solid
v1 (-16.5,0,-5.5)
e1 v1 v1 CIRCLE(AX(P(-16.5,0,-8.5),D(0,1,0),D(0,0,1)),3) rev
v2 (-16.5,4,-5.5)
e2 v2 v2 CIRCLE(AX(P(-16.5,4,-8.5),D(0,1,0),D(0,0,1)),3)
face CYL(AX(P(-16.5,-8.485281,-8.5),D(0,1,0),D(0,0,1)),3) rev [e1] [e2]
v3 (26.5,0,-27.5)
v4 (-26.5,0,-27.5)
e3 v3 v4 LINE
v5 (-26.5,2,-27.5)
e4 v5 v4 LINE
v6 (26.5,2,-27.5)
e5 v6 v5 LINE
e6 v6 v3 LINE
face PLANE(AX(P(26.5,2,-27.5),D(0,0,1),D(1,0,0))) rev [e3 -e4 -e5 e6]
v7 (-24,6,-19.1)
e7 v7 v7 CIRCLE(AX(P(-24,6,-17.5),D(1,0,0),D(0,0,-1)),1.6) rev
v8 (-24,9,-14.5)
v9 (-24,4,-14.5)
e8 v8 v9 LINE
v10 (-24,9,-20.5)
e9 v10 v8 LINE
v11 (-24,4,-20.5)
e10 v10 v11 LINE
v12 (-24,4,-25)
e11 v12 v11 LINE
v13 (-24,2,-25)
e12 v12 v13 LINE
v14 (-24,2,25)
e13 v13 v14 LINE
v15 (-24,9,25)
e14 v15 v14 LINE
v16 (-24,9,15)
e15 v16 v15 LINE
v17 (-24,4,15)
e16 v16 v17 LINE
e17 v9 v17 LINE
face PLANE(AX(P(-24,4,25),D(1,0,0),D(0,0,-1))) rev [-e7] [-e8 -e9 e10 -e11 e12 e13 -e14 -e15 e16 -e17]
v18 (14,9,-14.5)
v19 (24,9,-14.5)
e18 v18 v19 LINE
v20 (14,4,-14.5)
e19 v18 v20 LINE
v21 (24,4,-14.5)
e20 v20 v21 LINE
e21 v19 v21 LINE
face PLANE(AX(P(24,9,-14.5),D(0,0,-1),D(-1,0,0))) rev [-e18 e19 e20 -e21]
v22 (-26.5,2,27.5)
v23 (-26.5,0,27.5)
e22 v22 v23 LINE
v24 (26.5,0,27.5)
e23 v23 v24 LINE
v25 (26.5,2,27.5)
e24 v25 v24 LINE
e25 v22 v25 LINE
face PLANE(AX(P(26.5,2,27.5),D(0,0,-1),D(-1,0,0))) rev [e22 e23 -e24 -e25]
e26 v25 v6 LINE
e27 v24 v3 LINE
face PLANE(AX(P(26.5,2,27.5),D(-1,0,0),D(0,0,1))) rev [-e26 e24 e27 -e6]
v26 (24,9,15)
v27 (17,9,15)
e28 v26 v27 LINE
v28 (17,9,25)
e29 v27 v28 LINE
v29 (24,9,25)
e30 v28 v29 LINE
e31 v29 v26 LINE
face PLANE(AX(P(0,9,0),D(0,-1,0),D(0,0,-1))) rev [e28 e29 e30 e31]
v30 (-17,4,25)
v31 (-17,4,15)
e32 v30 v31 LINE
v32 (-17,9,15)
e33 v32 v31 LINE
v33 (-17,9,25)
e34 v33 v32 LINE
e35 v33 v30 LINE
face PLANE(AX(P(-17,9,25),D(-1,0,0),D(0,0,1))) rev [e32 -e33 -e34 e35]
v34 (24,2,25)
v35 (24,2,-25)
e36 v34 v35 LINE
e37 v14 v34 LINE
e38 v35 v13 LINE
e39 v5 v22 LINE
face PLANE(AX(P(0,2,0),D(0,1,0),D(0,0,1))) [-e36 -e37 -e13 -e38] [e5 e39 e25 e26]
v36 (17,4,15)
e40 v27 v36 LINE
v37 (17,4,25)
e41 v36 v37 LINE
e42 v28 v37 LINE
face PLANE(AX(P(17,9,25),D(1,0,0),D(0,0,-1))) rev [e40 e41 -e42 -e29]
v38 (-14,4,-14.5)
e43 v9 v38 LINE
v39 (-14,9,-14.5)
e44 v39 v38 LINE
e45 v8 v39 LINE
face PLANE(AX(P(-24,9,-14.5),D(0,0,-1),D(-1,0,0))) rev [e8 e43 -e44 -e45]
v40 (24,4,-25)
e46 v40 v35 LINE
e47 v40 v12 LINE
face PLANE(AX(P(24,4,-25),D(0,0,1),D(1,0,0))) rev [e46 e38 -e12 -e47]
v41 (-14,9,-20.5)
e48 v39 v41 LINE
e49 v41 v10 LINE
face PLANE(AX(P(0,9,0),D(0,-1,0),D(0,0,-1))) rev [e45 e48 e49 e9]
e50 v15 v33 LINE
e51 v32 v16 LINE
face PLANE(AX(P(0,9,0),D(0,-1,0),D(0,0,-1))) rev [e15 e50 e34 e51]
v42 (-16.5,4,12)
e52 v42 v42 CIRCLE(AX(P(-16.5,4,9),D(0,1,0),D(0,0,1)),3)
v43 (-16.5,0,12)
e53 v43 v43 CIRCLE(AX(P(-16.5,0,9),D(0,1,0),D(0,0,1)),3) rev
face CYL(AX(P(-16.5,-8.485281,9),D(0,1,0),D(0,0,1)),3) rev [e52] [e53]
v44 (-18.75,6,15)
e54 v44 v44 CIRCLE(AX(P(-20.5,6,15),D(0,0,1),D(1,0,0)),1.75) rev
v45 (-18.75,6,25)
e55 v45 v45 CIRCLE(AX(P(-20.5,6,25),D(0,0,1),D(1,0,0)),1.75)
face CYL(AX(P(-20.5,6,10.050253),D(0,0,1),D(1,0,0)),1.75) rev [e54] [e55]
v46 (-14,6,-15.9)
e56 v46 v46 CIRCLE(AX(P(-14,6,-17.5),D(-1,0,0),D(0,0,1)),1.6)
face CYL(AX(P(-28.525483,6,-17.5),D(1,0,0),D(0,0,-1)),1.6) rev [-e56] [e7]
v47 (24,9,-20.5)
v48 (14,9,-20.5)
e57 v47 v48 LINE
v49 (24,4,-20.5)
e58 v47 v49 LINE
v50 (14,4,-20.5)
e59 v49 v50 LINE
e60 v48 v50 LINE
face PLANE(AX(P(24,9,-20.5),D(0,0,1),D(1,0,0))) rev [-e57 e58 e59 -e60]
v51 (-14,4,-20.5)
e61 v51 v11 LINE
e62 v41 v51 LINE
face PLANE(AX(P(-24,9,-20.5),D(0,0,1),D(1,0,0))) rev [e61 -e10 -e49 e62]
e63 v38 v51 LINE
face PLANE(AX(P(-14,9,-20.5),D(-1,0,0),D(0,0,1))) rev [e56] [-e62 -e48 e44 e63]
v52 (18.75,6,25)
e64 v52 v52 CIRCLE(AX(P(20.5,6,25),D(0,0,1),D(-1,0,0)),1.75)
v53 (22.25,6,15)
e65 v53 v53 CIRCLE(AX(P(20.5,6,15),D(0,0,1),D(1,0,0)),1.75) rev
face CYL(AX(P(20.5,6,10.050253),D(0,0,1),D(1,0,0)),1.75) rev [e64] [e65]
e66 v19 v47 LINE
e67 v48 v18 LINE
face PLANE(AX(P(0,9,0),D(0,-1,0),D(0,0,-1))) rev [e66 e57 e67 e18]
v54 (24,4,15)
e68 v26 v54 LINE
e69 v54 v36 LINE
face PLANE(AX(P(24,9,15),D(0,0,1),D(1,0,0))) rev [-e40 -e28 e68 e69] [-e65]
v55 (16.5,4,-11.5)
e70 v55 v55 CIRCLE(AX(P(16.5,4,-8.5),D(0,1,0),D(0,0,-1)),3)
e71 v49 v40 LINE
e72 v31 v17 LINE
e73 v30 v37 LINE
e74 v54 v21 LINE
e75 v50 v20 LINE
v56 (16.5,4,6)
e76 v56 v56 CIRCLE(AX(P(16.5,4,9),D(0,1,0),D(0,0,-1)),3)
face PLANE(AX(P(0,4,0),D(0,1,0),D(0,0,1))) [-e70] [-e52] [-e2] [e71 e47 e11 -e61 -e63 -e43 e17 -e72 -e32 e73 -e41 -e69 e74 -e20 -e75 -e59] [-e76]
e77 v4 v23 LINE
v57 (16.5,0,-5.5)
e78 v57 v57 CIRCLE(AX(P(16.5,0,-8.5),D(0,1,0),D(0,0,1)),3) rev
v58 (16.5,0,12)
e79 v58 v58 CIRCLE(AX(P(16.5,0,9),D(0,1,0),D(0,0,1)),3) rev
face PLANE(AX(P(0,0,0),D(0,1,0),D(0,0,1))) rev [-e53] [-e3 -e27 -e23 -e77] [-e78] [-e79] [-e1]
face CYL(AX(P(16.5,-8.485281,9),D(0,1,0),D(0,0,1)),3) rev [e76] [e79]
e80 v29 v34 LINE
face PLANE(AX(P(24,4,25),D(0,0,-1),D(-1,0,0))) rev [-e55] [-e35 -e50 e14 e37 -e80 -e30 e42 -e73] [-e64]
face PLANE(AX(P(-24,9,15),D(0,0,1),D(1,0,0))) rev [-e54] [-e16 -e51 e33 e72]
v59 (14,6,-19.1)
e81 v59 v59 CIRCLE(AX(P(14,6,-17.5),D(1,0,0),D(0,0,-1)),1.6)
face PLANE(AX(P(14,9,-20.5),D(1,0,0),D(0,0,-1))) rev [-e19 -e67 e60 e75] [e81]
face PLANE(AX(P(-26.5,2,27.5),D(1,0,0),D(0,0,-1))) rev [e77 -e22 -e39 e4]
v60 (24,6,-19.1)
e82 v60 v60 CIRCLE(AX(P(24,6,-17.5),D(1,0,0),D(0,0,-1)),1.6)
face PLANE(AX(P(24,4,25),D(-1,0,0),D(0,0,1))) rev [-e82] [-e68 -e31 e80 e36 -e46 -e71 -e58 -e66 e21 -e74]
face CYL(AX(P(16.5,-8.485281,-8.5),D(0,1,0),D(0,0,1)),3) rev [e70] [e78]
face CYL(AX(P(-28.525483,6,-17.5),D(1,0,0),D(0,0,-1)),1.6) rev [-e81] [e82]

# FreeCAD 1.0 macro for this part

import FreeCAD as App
import Part
import Sketcher
from FreeCAD import Vector
Q = App.Units.Quantity

doc = App.newDocument("Part")
body = doc.addObject("PartDesign::Body", "Body")

# Sketch on XZ plane
sketch1 = doc.addObject("Sketcher::SketchObject", "Sketch")
body.addObject(sketch1)
sketch1.AttachmentSupport = (doc.XZ_Plane, [""])
sketch1.MapMode = "FlatFace"
sketch1.addGeometry([
    Part.LineSegment(Vector(-26, -28, 0), Vector(-26, 28, 0)),
    Part.LineSegment(Vector(-26, 28, 0), Vector(26, 28, 0)),
    Part.LineSegment(Vector(26, 28, 0), Vector(26, -28, 0)),
    Part.LineSegment(Vector(26, -28, 0), Vector(-26, -28, 0)),
], False)
sketch1.addConstraint([
    Sketcher.Constraint("Coincident", 0, 2, 1, 1),
    Sketcher.Constraint("Coincident", 1, 2, 2, 1),
    Sketcher.Constraint("Coincident", 2, 2, 3, 1),
    Sketcher.Constraint("Coincident", 3, 2, 0, 1),
    Sketcher.Constraint("Vertical", 0),
    Sketcher.Constraint("Horizontal", 1),
    Sketcher.Constraint("Vertical", 2),
    Sketcher.Constraint("Horizontal", 3),
    Sketcher.Constraint("Symmetric", 0, 2, 2, 2, -1, 1),
    Sketcher.Constraint("DistanceX", 1, 1, 1, 2, Q("53 mm")),
    Sketcher.Constraint("DistanceY", 0, 1, 0, 2, Q("55 mm")),
])
pad1 = doc.addObject("PartDesign::Pad", "Pad")
body.addObject(pad1)
pad1.Profile = sketch1
pad1.Length = 2
pad1.Reversed = True

# Sketch on XZ plane
sketch2 = doc.addObject("Sketcher::SketchObject", "Sketch001")
body.addObject(sketch2)
sketch2.AttachmentSupport = (doc.XZ_Plane, [""])
sketch2.MapMode = "FlatFace"
sketch2.AttachmentOffset = App.Placement(Vector(0, 0, -2), App.Rotation())
sketch2.addGeometry([
    Part.LineSegment(Vector(-24, -25, 0), Vector(-24, 25, 0)),
    Part.LineSegment(Vector(-24, 25, 0), Vector(24, 25, 0)),
    Part.LineSegment(Vector(24, 25, 0), Vector(24, -25, 0)),
    Part.LineSegment(Vector(24, -25, 0), Vector(-24, -25, 0)),
], False)
sketch2.addConstraint([
    Sketcher.Constraint("Coincident", 0, 2, 1, 1),
    Sketcher.Constraint("Coincident", 1, 2, 2, 1),
    Sketcher.Constraint("Coincident", 2, 2, 3, 1),
    Sketcher.Constraint("Coincident", 3, 2, 0, 1),
    Sketcher.Constraint("Vertical", 0),
    Sketcher.Constraint("Horizontal", 1),
    Sketcher.Constraint("Vertical", 2),
    Sketcher.Constraint("Horizontal", 3),
    Sketcher.Constraint("Symmetric", 0, 2, 2, 2, -1, 1),
    Sketcher.Constraint("DistanceX", 1, 1, 1, 2, Q("48 mm")),
    Sketcher.Constraint("DistanceY", 0, 1, 0, 2, Q("50 mm")),
])
pad2 = doc.addObject("PartDesign::Pad", "Pad001")
body.addObject(pad2)
pad2.Profile = sketch2
pad2.Length = 2
pad2.Reversed = True

# Sketch on XZ plane
sketch3 = doc.addObject("Sketcher::SketchObject", "Sketch002")
body.addObject(sketch3)
sketch3.AttachmentSupport = (doc.XZ_Plane, [""])
sketch3.MapMode = "FlatFace"
sketch3.AttachmentOffset = App.Placement(Vector(0, 0, -4), App.Rotation())
sketch3.addGeometry([
    Part.LineSegment(Vector(-24, 15, 0), Vector(-24, 25, 0)),  # 0
    Part.LineSegment(Vector(-24, 25, 0), Vector(-17, 25, 0)),  # 1
    Part.LineSegment(Vector(-17, 25, 0), Vector(-17, 15, 0)),  # 2
    Part.LineSegment(Vector(-17, 15, 0), Vector(-24, 15, 0)),  # 3
    Part.LineSegment(Vector(17, 15, 0), Vector(17, 25, 0)),  # 4
    Part.LineSegment(Vector(17, 25, 0), Vector(24, 25, 0)),  # 5
    Part.LineSegment(Vector(24, 25, 0), Vector(24, 15, 0)),  # 6
    Part.LineSegment(Vector(24, 15, 0), Vector(17, 15, 0)),  # 7
    Part.LineSegment(Vector(14, -20, 0), Vector(14, -14, 0)),  # 8
    Part.LineSegment(Vector(14, -14, 0), Vector(24, -14, 0)),  # 9
    Part.LineSegment(Vector(24, -14, 0), Vector(24, -20, 0)),  # 10
    Part.LineSegment(Vector(24, -20, 0), Vector(14, -20, 0)),  # 11
    Part.LineSegment(Vector(-24, -20, 0), Vector(-24, -14, 0)),  # 12
    Part.LineSegment(Vector(-24, -14, 0), Vector(-14, -14, 0)),  # 13
    Part.LineSegment(Vector(-14, -14, 0), Vector(-14, -20, 0)),  # 14
    Part.LineSegment(Vector(-14, -20, 0), Vector(-24, -20, 0)),  # 15
], False)
sketch3.addConstraint([
    Sketcher.Constraint("Coincident", 0, 2, 1, 1),
    Sketcher.Constraint("Coincident", 1, 2, 2, 1),
    Sketcher.Constraint("Coincident", 2, 2, 3, 1),
    Sketcher.Constraint("Coincident", 3, 2, 0, 1),
    Sketcher.Constraint("Coincident", 4, 2, 5, 1),
    Sketcher.Constraint("Coincident", 5, 2, 6, 1),
    Sketcher.Constraint("Coincident", 6, 2, 7, 1),
    Sketcher.Constraint("Coincident", 7, 2, 4, 1),
    Sketcher.Constraint("Coincident", 8, 2, 9, 1),
    Sketcher.Constraint("Coincident", 9, 2, 10, 1),
    Sketcher.Constraint("Coincident", 10, 2, 11, 1),
    Sketcher.Constraint("Coincident", 11, 2, 8, 1),
    Sketcher.Constraint("Coincident", 12, 2, 13, 1),
    Sketcher.Constraint("Coincident", 13, 2, 14, 1),
    Sketcher.Constraint("Coincident", 14, 2, 15, 1),
    Sketcher.Constraint("Coincident", 15, 2, 12, 1),
    Sketcher.Constraint("Vertical", 0),
    Sketcher.Constraint("Horizontal", 1),
    Sketcher.Constraint("Vertical", 2),
    Sketcher.Constraint("Horizontal", 3),
    Sketcher.Constraint("Vertical", 4),
    Sketcher.Constraint("Horizontal", 5),
    Sketcher.Constraint("Vertical", 6),
    Sketcher.Constraint("Horizontal", 7),
    Sketcher.Constraint("Vertical", 8),
    Sketcher.Constraint("Horizontal", 9),
    Sketcher.Constraint("Vertical", 10),
    Sketcher.Constraint("Horizontal", 11),
    Sketcher.Constraint("Vertical", 12),
    Sketcher.Constraint("Horizontal", 13),
    Sketcher.Constraint("Vertical", 14),
    Sketcher.Constraint("Horizontal", 15),
    Sketcher.Constraint("Symmetric", 1, 2, 4, 2, -2),
    Sketcher.Constraint("Symmetric", 3, 2, 6, 2, -2),
    Sketcher.Constraint("Symmetric", 9, 2, 12, 2, -2),
    Sketcher.Constraint("Symmetric", 11, 2, 14, 2, -2),
    Sketcher.Constraint("Vertical", 6, 2, 9, 2),
    Sketcher.Constraint("Equal", 15, 0),
    Sketcher.Constraint("DistanceX", 1, 1, 1, 2, Q("7 mm")),
    Sketcher.Constraint("DistanceX", 9, 1, 9, 2, Q("10 mm")),
    Sketcher.Constraint("DistanceY", 8, 1, 8, 2, Q("6 mm")),
    Sketcher.Constraint("DistanceX", 0, 2, -1, 1, Q("24 mm")),
    Sketcher.Constraint("DistanceY", -1, 1, 0, 2, Q("25 mm")),
    Sketcher.Constraint("DistanceY", 8, 2, -1, 1, Q("14.5 mm")),
])
pad3 = doc.addObject("PartDesign::Pad", "Pad002")
body.addObject(pad3)
pad3.Profile = sketch3
pad3.Length = 5
pad3.Reversed = True

# Sketch on XY plane
sketch4 = doc.addObject("Sketcher::SketchObject", "Sketch003")
body.addObject(sketch4)
sketch4.AttachmentSupport = (doc.XY_Plane, [""])
sketch4.MapMode = "FlatFace"
sketch4.AttachmentOffset = App.Placement(Vector(0, 0, 25), App.Rotation())
sketch4.addGeometry([
    Part.Circle(Vector(-20.5, 6, 0), Vector(0, 0, 1), 1.8),
    Part.Circle(Vector(20.5, 6, 0), Vector(0, 0, 1), 1.8),
], False)
sketch4.addConstraint([
    Sketcher.Constraint("Equal", 0, 1),
    Sketcher.Constraint("Symmetric", 0, 3, 1, 3, -2),
    Sketcher.Constraint("Diameter", 0, Q("3.5 mm")),
    Sketcher.Constraint("DistanceY", -1, 1, 0, 3, Q("6 mm")),
    Sketcher.Constraint("DistanceX", 0, 3, 1, 3, Q("41 mm")),
])
pocket1 = doc.addObject("PartDesign::Pocket", "Pocket")
body.addObject(pocket1)
pocket1.Profile = sketch4
pocket1.Length = 10

# Sketch on YZ plane
sketch5 = doc.addObject("Sketcher::SketchObject", "Sketch004")
body.addObject(sketch5)
sketch5.AttachmentSupport = (doc.YZ_Plane, [""])
sketch5.MapMode = "FlatFace"
sketch5.AttachmentOffset = App.Placement(Vector(0, 0, -24), App.Rotation())
sketch5.addGeometry(Part.Circle(Vector(6, -17.5, 0), Vector(0, 0, 1), 1.6), False)
sketch5.addConstraint([
    Sketcher.Constraint("Diameter", 0, Q("3.2 mm")),
    Sketcher.Constraint("DistanceX", -1, 1, 0, 3, Q("6 mm")),
    Sketcher.Constraint("DistanceY", 0, 3, -1, 1, Q("17.5 mm")),
])
pocket2 = doc.addObject("PartDesign::Pocket", "Pocket001")
body.addObject(pocket2)
pocket2.Profile = sketch5
pocket2.Length = 48
pocket2.Reversed = True

# Sketch on XZ plane
sketch6 = doc.addObject("Sketcher::SketchObject", "Sketch005")
body.addObject(sketch6)
sketch6.AttachmentSupport = (doc.XZ_Plane, [""])
sketch6.MapMode = "FlatFace"
sketch6.AttachmentOffset = App.Placement(Vector(0, 0, -4), App.Rotation())
sketch6.addGeometry([
    Part.Circle(Vector(-16.5, 9, 0), Vector(0, 0, 1), 3),
    Part.Circle(Vector(-16.5, -8.5, 0), Vector(0, 0, 1), 3),
    Part.Circle(Vector(16.5, 9, 0), Vector(0, 0, 1), 3),
    Part.Circle(Vector(16.5, -8.5, 0), Vector(0, 0, 1), 3),
], False)
sketch6.addConstraint([
    Sketcher.Constraint("Equal", 0, 1),
    Sketcher.Constraint("Equal", 1, 2),
    Sketcher.Constraint("Equal", 2, 3),
    Sketcher.Constraint("Symmetric", 0, 3, 2, 3, -2),
    Sketcher.Constraint("Symmetric", 1, 3, 3, 3, -2),
    Sketcher.Constraint("Vertical", 0, 3, 1, 3),
    Sketcher.Constraint("Diameter", 0, Q("6 mm")),
    Sketcher.Constraint("DistanceY", -1, 1, 0, 3, Q("9 mm")),
    Sketcher.Constraint("DistanceX", 0, 3, 2, 3, Q("33 mm")),
    Sketcher.Constraint("DistanceY", 1, 3, -1, 1, Q("8.5 mm")),
])
pocket3 = doc.addObject("PartDesign::Pocket", "Pocket002")
body.addObject(pocket3)
pocket3.Profile = sketch6
pocket3.Length = 4
pocket3.Reversed = True

doc.recompute()
